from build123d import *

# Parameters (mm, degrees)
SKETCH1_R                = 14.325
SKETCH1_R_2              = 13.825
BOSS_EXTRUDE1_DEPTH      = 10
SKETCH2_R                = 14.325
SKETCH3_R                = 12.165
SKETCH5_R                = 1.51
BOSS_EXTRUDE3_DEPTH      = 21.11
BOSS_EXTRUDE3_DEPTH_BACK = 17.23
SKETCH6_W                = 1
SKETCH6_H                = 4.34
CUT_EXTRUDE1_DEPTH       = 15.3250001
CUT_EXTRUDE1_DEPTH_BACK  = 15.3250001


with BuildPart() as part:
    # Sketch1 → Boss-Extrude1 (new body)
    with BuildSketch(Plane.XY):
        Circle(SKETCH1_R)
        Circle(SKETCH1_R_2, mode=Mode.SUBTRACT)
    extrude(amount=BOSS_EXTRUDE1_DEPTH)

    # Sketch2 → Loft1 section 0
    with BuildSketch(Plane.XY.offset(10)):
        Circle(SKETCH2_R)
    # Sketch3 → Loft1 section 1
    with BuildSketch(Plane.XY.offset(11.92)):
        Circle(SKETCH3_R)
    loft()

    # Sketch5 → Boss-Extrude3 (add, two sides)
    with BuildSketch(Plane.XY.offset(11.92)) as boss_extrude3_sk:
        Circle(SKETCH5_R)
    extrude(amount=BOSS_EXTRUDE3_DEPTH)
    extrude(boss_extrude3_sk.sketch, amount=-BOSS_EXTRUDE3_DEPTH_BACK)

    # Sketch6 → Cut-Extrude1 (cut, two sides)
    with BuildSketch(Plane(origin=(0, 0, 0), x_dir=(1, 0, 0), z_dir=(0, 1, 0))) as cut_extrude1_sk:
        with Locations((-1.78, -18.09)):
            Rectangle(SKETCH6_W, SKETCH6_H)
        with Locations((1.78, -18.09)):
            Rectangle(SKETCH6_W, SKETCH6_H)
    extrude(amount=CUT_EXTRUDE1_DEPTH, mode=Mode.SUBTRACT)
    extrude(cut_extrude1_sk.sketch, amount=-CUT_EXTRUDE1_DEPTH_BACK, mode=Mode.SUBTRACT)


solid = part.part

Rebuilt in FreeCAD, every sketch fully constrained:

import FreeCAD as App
import Part
import Sketcher


def add_polygon(sketch, points):
    """Adds a closed chain of lines whose ends are joined by coincident constraints."""
    first, n = sketch.GeometryCount, len(points)
    for a, b in zip(points, points[1:] + points[:1]):
        sketch.addGeometry(Part.LineSegment(App.Vector(*a, 0), App.Vector(*b, 0)), False)
    for i in range(n):
        sketch.addConstraint(Sketcher.Constraint("Coincident", first + i, 2, first + (i + 1) % n, 1))

doc = App.newDocument("Part")
params = doc.addObject("Spreadsheet::Sheet", "Params")
for row, (alias, value) in enumerate([
    ("sketch1_diameter", "28.65 mm"),
    ("sketch1_diameter2", "27.65 mm"),
    ("pad1_length", "10 mm"),
    ("sketch2_diameter", "28.65 mm"),
    ("sketch3_diameter", "24.33 mm"),
    ("sketch4_diameter", "3.02 mm"),
    ("pad2_length", "21.11 mm"),
    ("pad2_length2", "17.23 mm"),
    ("sketch5_width", "1 mm"),
    ("sketch5_height", "4.34 mm"),
], start=1):
    params.set(f"A{row}", alias)
    params.set(f"B{row}", "=" + value)
    params.setAlias(f"B{row}", alias)

body = doc.addObject("PartDesign::Body", "Body")

# Sketch on XY plane
sketch1 = body.newObject("Sketcher::SketchObject", "Sketch")
sketch1.AttachmentSupport = (doc.getObject("XY_Plane"), [""])
sketch1.MapMode = "FlatFace"
sketch1.addGeometry([
    Part.Circle(App.Vector(0, 0, 0), App.Vector(0, 0, 1), 14),
    Part.Circle(App.Vector(0, 0, 0), App.Vector(0, 0, 1), 14),
], False)
sketch1.addConstraint([
    Sketcher.Constraint("Coincident", 0, 3, -1, 1),
    Sketcher.Constraint("Coincident", 1, 3, -1, 1),
    Sketcher.Constraint("Diameter", 0, 28.65),
    Sketcher.Constraint("Diameter", 1, 27.65),
])
sketch1.setExpression("Constraints[2]", "Params.sketch1_diameter")
sketch1.setExpression("Constraints[3]", "Params.sketch1_diameter2")
pad1 = body.newObject("PartDesign::Pad", "Pad")
pad1.Profile = sketch1
pad1.setExpression("Length", "Params.pad1_length")

# Sketch on XY plane
sketch2 = body.newObject("Sketcher::SketchObject", "Sketch001")
sketch2.AttachmentSupport = (doc.getObject("XY_Plane"), [""])
sketch2.MapMode = "FlatFace"
sketch2.AttachmentOffset = App.Placement(App.Vector(0, 0, 10), App.Rotation())
sketch2.addGeometry(Part.Circle(App.Vector(0, 0, 0), App.Vector(0, 0, 1), 14), False)
sketch2.addConstraint([
    Sketcher.Constraint("Coincident", 0, 3, -1, 1),
    Sketcher.Constraint("Diameter", 0, 28.65),
])
sketch2.setExpression("Constraints[1]", "Params.sketch2_diameter")

# Sketch on XY plane
sketch3 = body.newObject("Sketcher::SketchObject", "Sketch002")
sketch3.AttachmentSupport = (doc.getObject("XY_Plane"), [""])
sketch3.MapMode = "FlatFace"
sketch3.AttachmentOffset = App.Placement(App.Vector(0, 0, 11.92), App.Rotation())
sketch3.addGeometry(Part.Circle(App.Vector(0, 0, 0), App.Vector(0, 0, 1), 12), False)
sketch3.addConstraint([
    Sketcher.Constraint("Coincident", 0, 3, -1, 1),
    Sketcher.Constraint("Diameter", 0, 24.33),
])
sketch3.setExpression("Constraints[1]", "Params.sketch3_diameter")

additiveloft = body.newObject("PartDesign::AdditiveLoft", "AdditiveLoft")
additiveloft.Profile = sketch2
additiveloft.Sections = [sketch3]

# Sketch on XY plane
sketch4 = body.newObject("Sketcher::SketchObject", "Sketch003")
sketch4.AttachmentSupport = (doc.getObject("XY_Plane"), [""])
sketch4.MapMode = "FlatFace"
sketch4.AttachmentOffset = App.Placement(App.Vector(0, 0, 11.92), App.Rotation())
sketch4.addGeometry(Part.Circle(App.Vector(0, 0, 0), App.Vector(0, 0, 1), 1.5), False)
sketch4.addConstraint([
    Sketcher.Constraint("Coincident", 0, 3, -1, 1),
    Sketcher.Constraint("Diameter", 0, 3.02),
])
sketch4.setExpression("Constraints[1]", "Params.sketch4_diameter")
pad2 = body.newObject("PartDesign::Pad", "Pad001")
pad2.Profile = sketch4
pad2.Type = "TwoLengths"
pad2.setExpression("Length", "Params.pad2_length")
pad2.setExpression("Length2", "Params.pad2_length2")

# Sketch on XZ plane
sketch5 = body.newObject("Sketcher::SketchObject", "Sketch004")
sketch5.AttachmentSupport = (doc.getObject("XZ_Plane"), [""])
sketch5.MapMode = "FlatFace"
add_polygon(sketch5, [(-2.3, 15.9), (-2.3, 20.3), (-1.3, 20.3), (-1.3, 15.9)])  # lines 0-3
add_polygon(sketch5, [(1.3, 15.9), (1.3, 20.3), (2.3, 20.3), (2.3, 15.9)])  # lines 4-7
sketch5.addConstraint([
    Sketcher.Constraint("Vertical", 0),
    Sketcher.Constraint("Horizontal", 1),
    Sketcher.Constraint("Vertical", 2),
    Sketcher.Constraint("Horizontal", 3),
    Sketcher.Constraint("Vertical", 4),
    Sketcher.Constraint("Horizontal", 5),
    Sketcher.Constraint("Vertical", 6),
    Sketcher.Constraint("Horizontal", 7),
    Sketcher.Constraint("Symmetric", 1, 2, 4, 2, -2),
    Sketcher.Constraint("Symmetric", 3, 2, 6, 2, -2),
    Sketcher.Constraint("DistanceX", 1, 1, 1, 2, 1.0),
    Sketcher.Constraint("DistanceY", 0, 1, 0, 2, 4.34),
    Sketcher.Constraint("DistanceX", 0, 2, -1, 1, 2.28),
    Sketcher.Constraint("DistanceY", -1, 1, 0, 2, 20.26),
])
sketch5.setExpression("Constraints[18]", "Params.sketch5_width")
sketch5.setExpression("Constraints[19]", "Params.sketch5_height")
pocket1 = body.newObject("PartDesign::Pocket", "Pocket")
pocket1.Profile = sketch5
pocket1.Type = "ThroughAll"
pocket1.Midplane = True

doc.recompute()
